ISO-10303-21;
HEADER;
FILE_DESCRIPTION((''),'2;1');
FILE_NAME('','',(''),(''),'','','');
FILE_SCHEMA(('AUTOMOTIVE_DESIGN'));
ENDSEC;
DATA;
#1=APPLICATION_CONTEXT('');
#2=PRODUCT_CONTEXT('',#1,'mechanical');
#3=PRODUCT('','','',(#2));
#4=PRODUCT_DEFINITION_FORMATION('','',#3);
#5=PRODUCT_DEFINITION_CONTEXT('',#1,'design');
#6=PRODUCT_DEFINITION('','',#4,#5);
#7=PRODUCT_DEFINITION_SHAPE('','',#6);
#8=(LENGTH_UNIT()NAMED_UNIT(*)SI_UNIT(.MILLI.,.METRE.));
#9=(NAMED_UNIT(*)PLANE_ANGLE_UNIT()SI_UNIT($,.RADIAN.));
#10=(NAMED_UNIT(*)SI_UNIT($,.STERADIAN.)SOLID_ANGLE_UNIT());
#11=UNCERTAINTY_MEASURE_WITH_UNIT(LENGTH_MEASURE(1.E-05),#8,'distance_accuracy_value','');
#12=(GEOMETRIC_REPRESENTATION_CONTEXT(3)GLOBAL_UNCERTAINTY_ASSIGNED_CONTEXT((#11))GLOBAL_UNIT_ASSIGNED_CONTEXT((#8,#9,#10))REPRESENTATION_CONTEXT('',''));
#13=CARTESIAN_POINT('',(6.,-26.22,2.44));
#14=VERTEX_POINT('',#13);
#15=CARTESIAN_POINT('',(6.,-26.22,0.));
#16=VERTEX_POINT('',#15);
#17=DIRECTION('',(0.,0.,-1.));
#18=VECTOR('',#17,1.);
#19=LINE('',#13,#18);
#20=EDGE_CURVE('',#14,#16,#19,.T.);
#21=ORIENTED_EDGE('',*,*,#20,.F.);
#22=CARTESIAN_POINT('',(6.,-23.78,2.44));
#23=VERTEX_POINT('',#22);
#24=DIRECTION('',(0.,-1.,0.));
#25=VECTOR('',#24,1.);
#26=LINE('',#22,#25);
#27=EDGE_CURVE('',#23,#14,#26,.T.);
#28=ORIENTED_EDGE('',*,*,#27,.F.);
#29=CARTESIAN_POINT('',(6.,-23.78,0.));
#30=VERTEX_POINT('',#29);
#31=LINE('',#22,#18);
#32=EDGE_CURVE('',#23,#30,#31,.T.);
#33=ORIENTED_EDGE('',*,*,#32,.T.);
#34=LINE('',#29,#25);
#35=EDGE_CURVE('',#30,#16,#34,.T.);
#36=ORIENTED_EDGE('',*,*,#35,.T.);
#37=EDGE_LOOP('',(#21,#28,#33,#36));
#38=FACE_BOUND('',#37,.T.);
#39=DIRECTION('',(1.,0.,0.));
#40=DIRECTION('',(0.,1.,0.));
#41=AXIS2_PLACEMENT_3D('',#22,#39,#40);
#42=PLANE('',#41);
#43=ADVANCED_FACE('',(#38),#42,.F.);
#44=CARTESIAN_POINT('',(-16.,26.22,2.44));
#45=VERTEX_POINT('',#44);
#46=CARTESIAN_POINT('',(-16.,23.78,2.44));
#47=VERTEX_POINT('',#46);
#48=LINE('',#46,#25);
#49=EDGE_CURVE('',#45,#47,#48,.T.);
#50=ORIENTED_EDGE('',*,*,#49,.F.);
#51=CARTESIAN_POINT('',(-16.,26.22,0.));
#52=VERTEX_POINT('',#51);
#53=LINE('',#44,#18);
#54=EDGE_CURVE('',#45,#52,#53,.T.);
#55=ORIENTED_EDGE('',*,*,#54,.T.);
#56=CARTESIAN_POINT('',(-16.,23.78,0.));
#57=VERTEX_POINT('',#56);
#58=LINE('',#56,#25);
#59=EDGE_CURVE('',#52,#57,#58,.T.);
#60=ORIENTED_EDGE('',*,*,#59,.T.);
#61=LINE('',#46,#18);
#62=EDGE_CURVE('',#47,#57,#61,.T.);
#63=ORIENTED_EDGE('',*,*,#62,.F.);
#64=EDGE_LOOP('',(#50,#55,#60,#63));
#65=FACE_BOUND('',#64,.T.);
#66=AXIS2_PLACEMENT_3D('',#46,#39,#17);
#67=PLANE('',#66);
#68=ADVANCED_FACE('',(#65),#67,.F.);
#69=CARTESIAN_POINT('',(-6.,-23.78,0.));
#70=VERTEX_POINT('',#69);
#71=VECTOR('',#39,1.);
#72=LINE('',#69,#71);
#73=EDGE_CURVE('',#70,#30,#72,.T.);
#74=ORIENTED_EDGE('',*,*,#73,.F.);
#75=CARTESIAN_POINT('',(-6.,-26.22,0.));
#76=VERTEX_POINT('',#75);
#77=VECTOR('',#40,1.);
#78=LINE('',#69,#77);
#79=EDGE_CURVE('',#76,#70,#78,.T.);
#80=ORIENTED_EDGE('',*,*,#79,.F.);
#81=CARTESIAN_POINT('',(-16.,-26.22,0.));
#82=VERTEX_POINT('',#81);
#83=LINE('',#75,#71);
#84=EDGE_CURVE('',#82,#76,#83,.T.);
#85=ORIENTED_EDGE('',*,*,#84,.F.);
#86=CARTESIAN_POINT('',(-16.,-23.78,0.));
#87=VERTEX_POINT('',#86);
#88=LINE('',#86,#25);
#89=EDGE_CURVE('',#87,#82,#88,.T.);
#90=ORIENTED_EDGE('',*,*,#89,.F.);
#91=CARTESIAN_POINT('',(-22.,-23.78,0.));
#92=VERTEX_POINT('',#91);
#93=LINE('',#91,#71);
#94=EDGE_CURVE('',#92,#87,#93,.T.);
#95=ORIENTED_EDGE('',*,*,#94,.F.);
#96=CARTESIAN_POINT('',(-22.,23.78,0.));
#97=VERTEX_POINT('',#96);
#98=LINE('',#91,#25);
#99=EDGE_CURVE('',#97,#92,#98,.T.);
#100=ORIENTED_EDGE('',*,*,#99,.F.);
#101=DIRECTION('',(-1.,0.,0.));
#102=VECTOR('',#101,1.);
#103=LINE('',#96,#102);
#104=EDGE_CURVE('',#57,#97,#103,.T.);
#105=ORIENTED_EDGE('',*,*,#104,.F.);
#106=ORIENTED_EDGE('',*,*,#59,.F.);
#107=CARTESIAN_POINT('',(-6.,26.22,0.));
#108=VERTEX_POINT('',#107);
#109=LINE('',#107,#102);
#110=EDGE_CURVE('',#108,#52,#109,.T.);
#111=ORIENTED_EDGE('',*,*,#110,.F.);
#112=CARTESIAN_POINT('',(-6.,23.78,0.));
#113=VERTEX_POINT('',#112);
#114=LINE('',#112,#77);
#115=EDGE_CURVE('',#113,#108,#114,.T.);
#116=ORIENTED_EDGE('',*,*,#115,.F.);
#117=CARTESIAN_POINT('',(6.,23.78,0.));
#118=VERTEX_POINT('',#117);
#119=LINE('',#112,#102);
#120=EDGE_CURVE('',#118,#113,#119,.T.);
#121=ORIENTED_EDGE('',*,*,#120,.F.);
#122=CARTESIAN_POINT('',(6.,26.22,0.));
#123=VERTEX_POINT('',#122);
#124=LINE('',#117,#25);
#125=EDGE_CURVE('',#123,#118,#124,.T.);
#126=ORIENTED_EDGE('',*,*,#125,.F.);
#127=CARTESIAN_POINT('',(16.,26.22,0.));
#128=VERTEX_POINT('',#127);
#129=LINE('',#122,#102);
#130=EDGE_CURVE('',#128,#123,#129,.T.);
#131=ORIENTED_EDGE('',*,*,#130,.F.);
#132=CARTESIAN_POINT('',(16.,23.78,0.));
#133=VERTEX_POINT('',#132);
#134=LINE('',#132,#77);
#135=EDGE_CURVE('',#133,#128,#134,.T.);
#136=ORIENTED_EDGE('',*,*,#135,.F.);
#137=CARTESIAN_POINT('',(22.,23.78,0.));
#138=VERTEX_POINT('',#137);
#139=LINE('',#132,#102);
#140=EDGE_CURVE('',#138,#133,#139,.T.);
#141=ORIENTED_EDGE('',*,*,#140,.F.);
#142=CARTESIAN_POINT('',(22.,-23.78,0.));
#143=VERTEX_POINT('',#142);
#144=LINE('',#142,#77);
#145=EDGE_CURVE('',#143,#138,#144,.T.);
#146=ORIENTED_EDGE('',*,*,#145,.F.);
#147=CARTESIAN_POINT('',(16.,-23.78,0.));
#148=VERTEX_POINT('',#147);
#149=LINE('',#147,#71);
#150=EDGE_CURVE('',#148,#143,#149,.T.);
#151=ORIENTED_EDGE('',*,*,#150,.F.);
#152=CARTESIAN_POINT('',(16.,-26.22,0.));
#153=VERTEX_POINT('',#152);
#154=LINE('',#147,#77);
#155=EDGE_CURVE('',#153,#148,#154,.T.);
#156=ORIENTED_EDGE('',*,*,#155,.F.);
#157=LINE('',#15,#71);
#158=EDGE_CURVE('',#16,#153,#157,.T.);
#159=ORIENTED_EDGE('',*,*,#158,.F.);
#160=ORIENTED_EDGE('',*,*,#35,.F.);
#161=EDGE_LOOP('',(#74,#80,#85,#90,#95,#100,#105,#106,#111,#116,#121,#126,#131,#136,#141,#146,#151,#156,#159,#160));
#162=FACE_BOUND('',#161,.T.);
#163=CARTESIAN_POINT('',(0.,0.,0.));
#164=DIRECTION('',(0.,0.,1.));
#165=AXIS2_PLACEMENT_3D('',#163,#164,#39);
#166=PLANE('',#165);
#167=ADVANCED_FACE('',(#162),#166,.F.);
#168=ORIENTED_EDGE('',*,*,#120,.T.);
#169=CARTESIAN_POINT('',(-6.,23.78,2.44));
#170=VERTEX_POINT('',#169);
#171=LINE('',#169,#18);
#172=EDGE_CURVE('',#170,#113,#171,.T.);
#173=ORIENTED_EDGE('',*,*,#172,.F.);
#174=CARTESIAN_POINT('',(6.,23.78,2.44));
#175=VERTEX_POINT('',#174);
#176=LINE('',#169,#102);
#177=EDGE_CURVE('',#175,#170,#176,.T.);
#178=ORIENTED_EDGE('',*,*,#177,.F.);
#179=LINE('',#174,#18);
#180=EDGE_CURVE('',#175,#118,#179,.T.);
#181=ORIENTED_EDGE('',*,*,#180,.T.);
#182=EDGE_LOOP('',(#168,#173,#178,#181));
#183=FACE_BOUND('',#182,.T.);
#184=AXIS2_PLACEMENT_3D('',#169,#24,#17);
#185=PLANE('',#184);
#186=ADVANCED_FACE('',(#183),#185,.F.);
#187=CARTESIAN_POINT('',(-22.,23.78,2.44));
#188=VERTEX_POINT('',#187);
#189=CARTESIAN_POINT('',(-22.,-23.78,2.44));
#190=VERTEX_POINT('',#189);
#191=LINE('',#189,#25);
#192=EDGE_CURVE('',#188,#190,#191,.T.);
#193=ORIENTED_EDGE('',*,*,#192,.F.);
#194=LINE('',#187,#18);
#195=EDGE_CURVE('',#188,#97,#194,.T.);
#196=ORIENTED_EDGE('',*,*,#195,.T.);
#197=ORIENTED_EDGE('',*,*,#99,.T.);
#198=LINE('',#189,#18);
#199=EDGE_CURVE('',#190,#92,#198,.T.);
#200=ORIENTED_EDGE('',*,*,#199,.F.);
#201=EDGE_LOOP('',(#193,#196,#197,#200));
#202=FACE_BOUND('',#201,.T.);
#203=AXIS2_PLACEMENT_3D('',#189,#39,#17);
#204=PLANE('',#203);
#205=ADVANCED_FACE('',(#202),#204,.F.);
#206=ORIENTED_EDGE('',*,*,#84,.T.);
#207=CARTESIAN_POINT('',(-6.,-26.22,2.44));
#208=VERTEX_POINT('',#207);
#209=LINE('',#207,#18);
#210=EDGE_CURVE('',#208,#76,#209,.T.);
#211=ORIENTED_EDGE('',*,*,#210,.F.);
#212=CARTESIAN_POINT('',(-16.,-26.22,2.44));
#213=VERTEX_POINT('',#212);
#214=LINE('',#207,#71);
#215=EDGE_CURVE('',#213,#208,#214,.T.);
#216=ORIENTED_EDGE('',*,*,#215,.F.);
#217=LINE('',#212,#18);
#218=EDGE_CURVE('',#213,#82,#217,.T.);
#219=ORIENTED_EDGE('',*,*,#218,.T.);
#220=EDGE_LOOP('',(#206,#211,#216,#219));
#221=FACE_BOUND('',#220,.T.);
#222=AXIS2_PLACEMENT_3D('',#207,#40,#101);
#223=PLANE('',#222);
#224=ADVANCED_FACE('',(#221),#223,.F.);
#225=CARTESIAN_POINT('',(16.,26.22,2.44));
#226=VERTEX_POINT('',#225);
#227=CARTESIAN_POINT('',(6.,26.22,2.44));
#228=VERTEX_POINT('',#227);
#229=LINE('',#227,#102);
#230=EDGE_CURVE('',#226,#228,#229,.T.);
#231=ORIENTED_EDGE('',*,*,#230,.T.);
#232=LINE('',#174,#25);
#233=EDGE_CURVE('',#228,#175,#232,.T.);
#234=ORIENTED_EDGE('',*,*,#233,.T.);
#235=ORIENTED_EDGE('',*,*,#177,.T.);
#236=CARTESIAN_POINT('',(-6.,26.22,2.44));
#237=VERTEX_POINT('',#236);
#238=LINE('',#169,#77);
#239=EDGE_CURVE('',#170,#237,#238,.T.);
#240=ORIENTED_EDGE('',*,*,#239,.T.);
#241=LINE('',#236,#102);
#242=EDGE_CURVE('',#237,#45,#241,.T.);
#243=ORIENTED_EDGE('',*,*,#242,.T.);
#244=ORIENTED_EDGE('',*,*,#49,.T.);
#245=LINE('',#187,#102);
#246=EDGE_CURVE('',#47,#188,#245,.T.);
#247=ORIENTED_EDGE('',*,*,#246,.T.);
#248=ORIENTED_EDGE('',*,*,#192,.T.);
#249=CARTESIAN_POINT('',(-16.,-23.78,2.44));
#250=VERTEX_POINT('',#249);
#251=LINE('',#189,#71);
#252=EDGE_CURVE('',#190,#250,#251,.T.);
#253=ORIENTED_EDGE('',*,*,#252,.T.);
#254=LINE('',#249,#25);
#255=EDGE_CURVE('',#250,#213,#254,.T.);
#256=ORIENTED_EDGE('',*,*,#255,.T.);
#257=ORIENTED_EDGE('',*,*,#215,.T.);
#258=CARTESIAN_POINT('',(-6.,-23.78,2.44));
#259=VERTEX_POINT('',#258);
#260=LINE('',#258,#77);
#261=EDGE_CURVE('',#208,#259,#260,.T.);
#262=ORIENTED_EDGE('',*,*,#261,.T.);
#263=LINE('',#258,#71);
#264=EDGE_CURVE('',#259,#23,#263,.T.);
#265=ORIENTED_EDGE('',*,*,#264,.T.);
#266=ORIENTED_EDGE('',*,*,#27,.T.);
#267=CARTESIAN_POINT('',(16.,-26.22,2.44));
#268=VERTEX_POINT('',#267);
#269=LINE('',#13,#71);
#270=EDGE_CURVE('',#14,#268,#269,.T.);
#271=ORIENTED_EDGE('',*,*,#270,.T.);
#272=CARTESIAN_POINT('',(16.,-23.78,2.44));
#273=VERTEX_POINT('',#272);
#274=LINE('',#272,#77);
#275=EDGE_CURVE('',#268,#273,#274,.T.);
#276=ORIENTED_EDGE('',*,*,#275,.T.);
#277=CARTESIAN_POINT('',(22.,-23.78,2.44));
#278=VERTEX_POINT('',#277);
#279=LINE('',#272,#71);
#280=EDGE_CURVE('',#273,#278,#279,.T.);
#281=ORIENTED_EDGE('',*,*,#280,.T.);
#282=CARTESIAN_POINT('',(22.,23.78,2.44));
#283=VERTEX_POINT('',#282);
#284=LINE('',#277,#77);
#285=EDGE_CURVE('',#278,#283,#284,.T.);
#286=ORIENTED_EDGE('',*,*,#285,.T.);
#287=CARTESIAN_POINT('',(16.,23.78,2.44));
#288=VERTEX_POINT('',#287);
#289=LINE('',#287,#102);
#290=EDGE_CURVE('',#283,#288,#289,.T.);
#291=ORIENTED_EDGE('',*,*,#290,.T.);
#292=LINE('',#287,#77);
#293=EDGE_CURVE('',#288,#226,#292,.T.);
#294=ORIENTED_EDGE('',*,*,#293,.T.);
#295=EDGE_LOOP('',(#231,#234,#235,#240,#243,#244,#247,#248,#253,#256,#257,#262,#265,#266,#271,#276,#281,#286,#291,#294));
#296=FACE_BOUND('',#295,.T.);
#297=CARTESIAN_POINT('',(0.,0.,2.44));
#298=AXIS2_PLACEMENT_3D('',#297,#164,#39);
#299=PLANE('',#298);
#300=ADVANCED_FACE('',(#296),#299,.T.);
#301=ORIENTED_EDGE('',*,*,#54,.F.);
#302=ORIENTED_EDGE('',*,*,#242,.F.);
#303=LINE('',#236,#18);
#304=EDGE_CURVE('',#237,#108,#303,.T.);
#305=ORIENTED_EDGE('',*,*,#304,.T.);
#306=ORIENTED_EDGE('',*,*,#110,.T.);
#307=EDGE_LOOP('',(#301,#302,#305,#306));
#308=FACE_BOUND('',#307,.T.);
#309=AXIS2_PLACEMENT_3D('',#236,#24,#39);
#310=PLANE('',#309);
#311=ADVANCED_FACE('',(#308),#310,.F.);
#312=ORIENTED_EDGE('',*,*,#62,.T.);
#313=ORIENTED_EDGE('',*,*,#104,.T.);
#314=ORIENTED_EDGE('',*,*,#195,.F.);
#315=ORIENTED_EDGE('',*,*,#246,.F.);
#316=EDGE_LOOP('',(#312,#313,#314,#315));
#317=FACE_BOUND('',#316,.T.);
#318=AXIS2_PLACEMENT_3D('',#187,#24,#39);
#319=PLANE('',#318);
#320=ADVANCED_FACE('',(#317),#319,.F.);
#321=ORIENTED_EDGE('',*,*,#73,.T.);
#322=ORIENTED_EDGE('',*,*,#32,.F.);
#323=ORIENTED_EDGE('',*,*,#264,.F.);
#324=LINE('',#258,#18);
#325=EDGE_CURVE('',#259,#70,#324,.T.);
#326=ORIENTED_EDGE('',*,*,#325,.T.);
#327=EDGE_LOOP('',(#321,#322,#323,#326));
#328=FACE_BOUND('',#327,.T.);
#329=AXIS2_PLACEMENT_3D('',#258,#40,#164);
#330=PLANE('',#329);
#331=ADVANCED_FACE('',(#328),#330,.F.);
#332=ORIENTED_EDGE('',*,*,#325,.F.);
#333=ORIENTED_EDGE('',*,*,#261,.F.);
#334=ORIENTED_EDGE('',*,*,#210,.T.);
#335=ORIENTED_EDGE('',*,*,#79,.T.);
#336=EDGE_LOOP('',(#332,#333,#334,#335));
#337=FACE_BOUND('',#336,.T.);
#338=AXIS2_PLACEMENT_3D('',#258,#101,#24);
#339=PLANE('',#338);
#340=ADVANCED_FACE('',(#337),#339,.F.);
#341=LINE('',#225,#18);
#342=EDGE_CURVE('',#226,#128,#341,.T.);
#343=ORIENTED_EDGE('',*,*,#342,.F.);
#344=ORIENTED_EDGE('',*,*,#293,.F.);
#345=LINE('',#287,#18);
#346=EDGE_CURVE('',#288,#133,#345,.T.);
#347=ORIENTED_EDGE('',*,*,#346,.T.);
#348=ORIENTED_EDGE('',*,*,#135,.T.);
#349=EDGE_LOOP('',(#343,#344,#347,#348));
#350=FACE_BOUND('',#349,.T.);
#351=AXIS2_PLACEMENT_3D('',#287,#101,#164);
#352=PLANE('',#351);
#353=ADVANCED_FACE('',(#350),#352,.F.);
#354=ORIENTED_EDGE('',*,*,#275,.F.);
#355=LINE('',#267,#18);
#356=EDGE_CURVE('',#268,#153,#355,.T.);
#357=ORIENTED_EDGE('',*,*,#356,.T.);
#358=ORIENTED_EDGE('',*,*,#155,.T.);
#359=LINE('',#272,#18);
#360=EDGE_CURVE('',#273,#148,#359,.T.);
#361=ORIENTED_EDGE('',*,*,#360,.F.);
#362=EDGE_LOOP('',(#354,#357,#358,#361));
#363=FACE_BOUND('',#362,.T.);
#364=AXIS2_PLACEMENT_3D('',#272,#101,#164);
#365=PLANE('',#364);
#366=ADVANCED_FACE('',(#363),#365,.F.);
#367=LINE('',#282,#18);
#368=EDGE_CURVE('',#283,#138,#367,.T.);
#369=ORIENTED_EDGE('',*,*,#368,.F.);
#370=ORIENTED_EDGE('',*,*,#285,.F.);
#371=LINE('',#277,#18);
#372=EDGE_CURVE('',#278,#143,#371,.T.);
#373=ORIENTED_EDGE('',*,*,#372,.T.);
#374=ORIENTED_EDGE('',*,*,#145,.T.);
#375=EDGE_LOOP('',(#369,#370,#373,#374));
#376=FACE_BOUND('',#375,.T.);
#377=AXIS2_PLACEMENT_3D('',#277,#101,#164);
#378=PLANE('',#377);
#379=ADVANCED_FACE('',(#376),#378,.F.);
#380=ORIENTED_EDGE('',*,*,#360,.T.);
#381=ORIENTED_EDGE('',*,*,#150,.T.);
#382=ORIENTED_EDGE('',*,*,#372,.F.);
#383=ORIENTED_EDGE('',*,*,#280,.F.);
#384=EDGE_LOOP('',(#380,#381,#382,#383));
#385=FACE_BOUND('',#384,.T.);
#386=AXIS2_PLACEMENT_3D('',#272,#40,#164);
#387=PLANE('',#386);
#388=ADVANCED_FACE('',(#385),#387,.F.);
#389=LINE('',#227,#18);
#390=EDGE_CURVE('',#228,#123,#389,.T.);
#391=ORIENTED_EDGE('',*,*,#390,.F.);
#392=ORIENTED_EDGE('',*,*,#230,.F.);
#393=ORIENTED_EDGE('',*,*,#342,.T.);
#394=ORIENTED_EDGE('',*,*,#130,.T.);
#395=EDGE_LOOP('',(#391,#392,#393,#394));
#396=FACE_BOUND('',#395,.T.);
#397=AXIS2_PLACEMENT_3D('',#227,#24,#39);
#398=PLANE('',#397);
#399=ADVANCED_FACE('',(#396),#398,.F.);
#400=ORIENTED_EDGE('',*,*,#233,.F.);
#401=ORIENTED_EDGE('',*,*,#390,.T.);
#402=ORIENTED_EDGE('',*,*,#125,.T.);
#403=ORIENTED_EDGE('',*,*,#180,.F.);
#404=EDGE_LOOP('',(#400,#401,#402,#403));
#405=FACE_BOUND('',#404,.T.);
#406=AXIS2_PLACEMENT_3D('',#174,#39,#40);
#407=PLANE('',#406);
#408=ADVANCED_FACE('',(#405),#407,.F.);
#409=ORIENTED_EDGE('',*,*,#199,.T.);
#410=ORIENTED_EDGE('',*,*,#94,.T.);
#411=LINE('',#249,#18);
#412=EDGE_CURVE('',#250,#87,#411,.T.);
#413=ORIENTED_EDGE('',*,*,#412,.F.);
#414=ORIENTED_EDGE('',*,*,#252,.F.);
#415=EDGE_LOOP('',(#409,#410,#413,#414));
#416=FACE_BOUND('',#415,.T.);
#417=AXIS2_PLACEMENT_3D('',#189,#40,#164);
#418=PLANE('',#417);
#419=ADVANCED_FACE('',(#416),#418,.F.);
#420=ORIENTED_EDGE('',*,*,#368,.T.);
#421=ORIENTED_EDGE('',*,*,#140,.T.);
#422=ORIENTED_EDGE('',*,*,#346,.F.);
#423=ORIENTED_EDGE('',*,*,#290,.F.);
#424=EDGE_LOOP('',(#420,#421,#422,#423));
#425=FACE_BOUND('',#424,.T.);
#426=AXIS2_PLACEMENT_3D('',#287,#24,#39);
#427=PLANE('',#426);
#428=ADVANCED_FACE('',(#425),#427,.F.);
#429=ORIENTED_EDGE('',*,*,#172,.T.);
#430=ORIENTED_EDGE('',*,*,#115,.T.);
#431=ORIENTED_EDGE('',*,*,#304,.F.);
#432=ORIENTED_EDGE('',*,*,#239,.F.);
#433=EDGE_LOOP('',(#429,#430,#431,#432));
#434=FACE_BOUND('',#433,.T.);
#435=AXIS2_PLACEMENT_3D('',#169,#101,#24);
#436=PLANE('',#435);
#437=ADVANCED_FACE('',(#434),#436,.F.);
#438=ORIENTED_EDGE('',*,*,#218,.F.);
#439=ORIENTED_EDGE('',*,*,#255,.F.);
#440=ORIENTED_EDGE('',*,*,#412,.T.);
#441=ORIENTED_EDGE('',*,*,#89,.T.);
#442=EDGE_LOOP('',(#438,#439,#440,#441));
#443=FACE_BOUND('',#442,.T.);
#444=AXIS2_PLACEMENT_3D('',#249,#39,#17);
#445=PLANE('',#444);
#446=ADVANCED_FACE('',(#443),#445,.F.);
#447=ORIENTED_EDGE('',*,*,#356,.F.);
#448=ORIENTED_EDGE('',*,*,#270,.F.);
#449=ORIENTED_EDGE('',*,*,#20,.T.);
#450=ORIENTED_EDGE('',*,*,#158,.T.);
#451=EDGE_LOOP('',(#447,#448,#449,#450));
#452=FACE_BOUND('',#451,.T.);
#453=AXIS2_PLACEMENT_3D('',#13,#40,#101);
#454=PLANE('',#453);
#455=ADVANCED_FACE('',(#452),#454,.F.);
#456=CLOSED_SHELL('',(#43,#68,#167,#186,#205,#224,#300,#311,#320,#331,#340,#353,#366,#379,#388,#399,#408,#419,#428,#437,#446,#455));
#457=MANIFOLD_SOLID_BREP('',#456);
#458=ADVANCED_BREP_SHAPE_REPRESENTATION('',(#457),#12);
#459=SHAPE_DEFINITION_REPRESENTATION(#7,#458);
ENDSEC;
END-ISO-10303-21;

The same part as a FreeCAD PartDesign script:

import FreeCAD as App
import Part
import Sketcher

V = App.Vector

doc = App.newDocument("Part")
body = doc.addObject("PartDesign::Body", "Body")

# Sketch on XY plane
sketch1 = body.newObject("Sketcher::SketchObject", "Sketch")
sketch1.AttachmentSupport = (doc.getObject("XY_Plane"), [""])
sketch1.MapMode = "FlatFace"
sketch1.addGeometry([
    Part.LineSegment(V(-22, -23.78, 0), V(-16, -23.78, 0)),  # 0
    Part.LineSegment(V(-16, -23.78, 0), V(-16, -26.22, 0)),  # 1
    Part.LineSegment(V(-16, -26.22, 0), V(-6, -26.22, 0)),  # 2
    Part.LineSegment(V(-6, -26.22, 0), V(-6, -23.78, 0)),  # 3
    Part.LineSegment(V(-6, -23.78, 0), V(6, -23.78, 0)),  # 4
    Part.LineSegment(V(6, -23.78, 0), V(6, -26.22, 0)),  # 5
    Part.LineSegment(V(6, -26.22, 0), V(16, -26.22, 0)),  # 6
    Part.LineSegment(V(16, -26.22, 0), V(16, -23.78, 0)),  # 7
    Part.LineSegment(V(16, -23.78, 0), V(22, -23.78, 0)),  # 8
    Part.LineSegment(V(22, -23.78, 0), V(22, 23.78, 0)),  # 9
    Part.LineSegment(V(22, 23.78, 0), V(16, 23.78, 0)),  # 10
    Part.LineSegment(V(16, 23.78, 0), V(16, 26.22, 0)),  # 11
    Part.LineSegment(V(16, 26.22, 0), V(6, 26.22, 0)),  # 12
    Part.LineSegment(V(6, 26.22, 0), V(6, 23.78, 0)),  # 13
    Part.LineSegment(V(6, 23.78, 0), V(-6, 23.78, 0)),  # 14
    Part.LineSegment(V(-6, 23.78, 0), V(-6, 26.22, 0)),  # 15
    Part.LineSegment(V(-6, 26.22, 0), V(-16, 26.22, 0)),  # 16
    Part.LineSegment(V(-16, 26.22, 0), V(-16, 23.78, 0)),  # 17
    Part.LineSegment(V(-16, 23.78, 0), V(-22, 23.78, 0)),  # 18
    Part.LineSegment(V(-22, 23.78, 0), V(-22, -23.78, 0)),  # 19
], False)
sketch1.addConstraint([
    Sketcher.Constraint("Coincident", 0, 2, 1, 1),
    Sketcher.Constraint("Coincident", 1, 2, 2, 1),
    Sketcher.Constraint("Coincident", 2, 2, 3, 1),
    Sketcher.Constraint("Coincident", 3, 2, 4, 1),
    Sketcher.Constraint("Coincident", 4, 2, 5, 1),
    Sketcher.Constraint("Coincident", 5, 2, 6, 1),
    Sketcher.Constraint("Coincident", 6, 2, 7, 1),
    Sketcher.Constraint("Coincident", 7, 2, 8, 1),
    Sketcher.Constraint("Coincident", 8, 2, 9, 1),
    Sketcher.Constraint("Coincident", 9, 2, 10, 1),
    Sketcher.Constraint("Coincident", 10, 2, 11, 1),
    Sketcher.Constraint("Coincident", 11, 2, 12, 1),
    Sketcher.Constraint("Coincident", 12, 2, 13, 1),
    Sketcher.Constraint("Coincident", 13, 2, 14, 1),
    Sketcher.Constraint("Coincident", 14, 2, 15, 1),
    Sketcher.Constraint("Coincident", 15, 2, 16, 1),
    Sketcher.Constraint("Coincident", 16, 2, 17, 1),
    Sketcher.Constraint("Coincident", 17, 2, 18, 1),
    Sketcher.Constraint("Coincident", 18, 2, 19, 1),
    Sketcher.Constraint("Coincident", 19, 2, 0, 1),
    Sketcher.Constraint("Horizontal", 0),
    Sketcher.Constraint("Vertical", 1),
    Sketcher.Constraint("Horizontal", 2),
    Sketcher.Constraint("Vertical", 3),
    Sketcher.Constraint("Horizontal", 4),
    Sketcher.Constraint("Vertical", 5),
    Sketcher.Constraint("Horizontal", 6),
    Sketcher.Constraint("Vertical", 7),
    Sketcher.Constraint("Horizontal", 8),
    Sketcher.Constraint("Vertical", 9),
    Sketcher.Constraint("Horizontal", 10),
    Sketcher.Constraint("Vertical", 11),
    Sketcher.Constraint("Horizontal", 12),
    Sketcher.Constraint("Vertical", 13),
    Sketcher.Constraint("Horizontal", 14),
    Sketcher.Constraint("Vertical", 15),
    Sketcher.Constraint("Horizontal", 16),
    Sketcher.Constraint("Vertical", 17),
    Sketcher.Constraint("Horizontal", 18),
    Sketcher.Constraint("Vertical", 19),
    Sketcher.Constraint("Symmetric", 0, 2, 10, 2, -1, 1),
    Sketcher.Constraint("Symmetric", 2, 2, 12, 2, -1, 1),
    Sketcher.Constraint("Symmetric", 4, 2, 14, 2, -1, 1),
    Sketcher.Constraint("Symmetric", 6, 2, 16, 2, -1, 1),
    Sketcher.Constraint("Symmetric", 8, 2, 18, 2, -1, 1),
    Sketcher.Constraint("Symmetric", 2, 2, 5, 2, -2),
    Sketcher.Constraint("Symmetric", 0, 2, 7, 2, -2),
    Sketcher.Constraint("Horizontal", 0, 2, 3, 2),
    Sketcher.Constraint("DistanceX", 0, 1, 0, 2, 6.0),
    Sketcher.Constraint("DistanceX", 2, 1, 2, 2, 10.0),
    Sketcher.Constraint("DistanceX", 4, 1, 4, 2, 12.0),
    Sketcher.Constraint("DistanceY", 6, 2, 9, 2, 50.0),
    Sketcher.Constraint("DistanceY", 1, 2, 1, 1, 2.44),
])
pad1 = body.newObject("PartDesign::Pad", "Pad")
pad1.Profile = sketch1
pad1.Length = 2.44

doc.recompute()
